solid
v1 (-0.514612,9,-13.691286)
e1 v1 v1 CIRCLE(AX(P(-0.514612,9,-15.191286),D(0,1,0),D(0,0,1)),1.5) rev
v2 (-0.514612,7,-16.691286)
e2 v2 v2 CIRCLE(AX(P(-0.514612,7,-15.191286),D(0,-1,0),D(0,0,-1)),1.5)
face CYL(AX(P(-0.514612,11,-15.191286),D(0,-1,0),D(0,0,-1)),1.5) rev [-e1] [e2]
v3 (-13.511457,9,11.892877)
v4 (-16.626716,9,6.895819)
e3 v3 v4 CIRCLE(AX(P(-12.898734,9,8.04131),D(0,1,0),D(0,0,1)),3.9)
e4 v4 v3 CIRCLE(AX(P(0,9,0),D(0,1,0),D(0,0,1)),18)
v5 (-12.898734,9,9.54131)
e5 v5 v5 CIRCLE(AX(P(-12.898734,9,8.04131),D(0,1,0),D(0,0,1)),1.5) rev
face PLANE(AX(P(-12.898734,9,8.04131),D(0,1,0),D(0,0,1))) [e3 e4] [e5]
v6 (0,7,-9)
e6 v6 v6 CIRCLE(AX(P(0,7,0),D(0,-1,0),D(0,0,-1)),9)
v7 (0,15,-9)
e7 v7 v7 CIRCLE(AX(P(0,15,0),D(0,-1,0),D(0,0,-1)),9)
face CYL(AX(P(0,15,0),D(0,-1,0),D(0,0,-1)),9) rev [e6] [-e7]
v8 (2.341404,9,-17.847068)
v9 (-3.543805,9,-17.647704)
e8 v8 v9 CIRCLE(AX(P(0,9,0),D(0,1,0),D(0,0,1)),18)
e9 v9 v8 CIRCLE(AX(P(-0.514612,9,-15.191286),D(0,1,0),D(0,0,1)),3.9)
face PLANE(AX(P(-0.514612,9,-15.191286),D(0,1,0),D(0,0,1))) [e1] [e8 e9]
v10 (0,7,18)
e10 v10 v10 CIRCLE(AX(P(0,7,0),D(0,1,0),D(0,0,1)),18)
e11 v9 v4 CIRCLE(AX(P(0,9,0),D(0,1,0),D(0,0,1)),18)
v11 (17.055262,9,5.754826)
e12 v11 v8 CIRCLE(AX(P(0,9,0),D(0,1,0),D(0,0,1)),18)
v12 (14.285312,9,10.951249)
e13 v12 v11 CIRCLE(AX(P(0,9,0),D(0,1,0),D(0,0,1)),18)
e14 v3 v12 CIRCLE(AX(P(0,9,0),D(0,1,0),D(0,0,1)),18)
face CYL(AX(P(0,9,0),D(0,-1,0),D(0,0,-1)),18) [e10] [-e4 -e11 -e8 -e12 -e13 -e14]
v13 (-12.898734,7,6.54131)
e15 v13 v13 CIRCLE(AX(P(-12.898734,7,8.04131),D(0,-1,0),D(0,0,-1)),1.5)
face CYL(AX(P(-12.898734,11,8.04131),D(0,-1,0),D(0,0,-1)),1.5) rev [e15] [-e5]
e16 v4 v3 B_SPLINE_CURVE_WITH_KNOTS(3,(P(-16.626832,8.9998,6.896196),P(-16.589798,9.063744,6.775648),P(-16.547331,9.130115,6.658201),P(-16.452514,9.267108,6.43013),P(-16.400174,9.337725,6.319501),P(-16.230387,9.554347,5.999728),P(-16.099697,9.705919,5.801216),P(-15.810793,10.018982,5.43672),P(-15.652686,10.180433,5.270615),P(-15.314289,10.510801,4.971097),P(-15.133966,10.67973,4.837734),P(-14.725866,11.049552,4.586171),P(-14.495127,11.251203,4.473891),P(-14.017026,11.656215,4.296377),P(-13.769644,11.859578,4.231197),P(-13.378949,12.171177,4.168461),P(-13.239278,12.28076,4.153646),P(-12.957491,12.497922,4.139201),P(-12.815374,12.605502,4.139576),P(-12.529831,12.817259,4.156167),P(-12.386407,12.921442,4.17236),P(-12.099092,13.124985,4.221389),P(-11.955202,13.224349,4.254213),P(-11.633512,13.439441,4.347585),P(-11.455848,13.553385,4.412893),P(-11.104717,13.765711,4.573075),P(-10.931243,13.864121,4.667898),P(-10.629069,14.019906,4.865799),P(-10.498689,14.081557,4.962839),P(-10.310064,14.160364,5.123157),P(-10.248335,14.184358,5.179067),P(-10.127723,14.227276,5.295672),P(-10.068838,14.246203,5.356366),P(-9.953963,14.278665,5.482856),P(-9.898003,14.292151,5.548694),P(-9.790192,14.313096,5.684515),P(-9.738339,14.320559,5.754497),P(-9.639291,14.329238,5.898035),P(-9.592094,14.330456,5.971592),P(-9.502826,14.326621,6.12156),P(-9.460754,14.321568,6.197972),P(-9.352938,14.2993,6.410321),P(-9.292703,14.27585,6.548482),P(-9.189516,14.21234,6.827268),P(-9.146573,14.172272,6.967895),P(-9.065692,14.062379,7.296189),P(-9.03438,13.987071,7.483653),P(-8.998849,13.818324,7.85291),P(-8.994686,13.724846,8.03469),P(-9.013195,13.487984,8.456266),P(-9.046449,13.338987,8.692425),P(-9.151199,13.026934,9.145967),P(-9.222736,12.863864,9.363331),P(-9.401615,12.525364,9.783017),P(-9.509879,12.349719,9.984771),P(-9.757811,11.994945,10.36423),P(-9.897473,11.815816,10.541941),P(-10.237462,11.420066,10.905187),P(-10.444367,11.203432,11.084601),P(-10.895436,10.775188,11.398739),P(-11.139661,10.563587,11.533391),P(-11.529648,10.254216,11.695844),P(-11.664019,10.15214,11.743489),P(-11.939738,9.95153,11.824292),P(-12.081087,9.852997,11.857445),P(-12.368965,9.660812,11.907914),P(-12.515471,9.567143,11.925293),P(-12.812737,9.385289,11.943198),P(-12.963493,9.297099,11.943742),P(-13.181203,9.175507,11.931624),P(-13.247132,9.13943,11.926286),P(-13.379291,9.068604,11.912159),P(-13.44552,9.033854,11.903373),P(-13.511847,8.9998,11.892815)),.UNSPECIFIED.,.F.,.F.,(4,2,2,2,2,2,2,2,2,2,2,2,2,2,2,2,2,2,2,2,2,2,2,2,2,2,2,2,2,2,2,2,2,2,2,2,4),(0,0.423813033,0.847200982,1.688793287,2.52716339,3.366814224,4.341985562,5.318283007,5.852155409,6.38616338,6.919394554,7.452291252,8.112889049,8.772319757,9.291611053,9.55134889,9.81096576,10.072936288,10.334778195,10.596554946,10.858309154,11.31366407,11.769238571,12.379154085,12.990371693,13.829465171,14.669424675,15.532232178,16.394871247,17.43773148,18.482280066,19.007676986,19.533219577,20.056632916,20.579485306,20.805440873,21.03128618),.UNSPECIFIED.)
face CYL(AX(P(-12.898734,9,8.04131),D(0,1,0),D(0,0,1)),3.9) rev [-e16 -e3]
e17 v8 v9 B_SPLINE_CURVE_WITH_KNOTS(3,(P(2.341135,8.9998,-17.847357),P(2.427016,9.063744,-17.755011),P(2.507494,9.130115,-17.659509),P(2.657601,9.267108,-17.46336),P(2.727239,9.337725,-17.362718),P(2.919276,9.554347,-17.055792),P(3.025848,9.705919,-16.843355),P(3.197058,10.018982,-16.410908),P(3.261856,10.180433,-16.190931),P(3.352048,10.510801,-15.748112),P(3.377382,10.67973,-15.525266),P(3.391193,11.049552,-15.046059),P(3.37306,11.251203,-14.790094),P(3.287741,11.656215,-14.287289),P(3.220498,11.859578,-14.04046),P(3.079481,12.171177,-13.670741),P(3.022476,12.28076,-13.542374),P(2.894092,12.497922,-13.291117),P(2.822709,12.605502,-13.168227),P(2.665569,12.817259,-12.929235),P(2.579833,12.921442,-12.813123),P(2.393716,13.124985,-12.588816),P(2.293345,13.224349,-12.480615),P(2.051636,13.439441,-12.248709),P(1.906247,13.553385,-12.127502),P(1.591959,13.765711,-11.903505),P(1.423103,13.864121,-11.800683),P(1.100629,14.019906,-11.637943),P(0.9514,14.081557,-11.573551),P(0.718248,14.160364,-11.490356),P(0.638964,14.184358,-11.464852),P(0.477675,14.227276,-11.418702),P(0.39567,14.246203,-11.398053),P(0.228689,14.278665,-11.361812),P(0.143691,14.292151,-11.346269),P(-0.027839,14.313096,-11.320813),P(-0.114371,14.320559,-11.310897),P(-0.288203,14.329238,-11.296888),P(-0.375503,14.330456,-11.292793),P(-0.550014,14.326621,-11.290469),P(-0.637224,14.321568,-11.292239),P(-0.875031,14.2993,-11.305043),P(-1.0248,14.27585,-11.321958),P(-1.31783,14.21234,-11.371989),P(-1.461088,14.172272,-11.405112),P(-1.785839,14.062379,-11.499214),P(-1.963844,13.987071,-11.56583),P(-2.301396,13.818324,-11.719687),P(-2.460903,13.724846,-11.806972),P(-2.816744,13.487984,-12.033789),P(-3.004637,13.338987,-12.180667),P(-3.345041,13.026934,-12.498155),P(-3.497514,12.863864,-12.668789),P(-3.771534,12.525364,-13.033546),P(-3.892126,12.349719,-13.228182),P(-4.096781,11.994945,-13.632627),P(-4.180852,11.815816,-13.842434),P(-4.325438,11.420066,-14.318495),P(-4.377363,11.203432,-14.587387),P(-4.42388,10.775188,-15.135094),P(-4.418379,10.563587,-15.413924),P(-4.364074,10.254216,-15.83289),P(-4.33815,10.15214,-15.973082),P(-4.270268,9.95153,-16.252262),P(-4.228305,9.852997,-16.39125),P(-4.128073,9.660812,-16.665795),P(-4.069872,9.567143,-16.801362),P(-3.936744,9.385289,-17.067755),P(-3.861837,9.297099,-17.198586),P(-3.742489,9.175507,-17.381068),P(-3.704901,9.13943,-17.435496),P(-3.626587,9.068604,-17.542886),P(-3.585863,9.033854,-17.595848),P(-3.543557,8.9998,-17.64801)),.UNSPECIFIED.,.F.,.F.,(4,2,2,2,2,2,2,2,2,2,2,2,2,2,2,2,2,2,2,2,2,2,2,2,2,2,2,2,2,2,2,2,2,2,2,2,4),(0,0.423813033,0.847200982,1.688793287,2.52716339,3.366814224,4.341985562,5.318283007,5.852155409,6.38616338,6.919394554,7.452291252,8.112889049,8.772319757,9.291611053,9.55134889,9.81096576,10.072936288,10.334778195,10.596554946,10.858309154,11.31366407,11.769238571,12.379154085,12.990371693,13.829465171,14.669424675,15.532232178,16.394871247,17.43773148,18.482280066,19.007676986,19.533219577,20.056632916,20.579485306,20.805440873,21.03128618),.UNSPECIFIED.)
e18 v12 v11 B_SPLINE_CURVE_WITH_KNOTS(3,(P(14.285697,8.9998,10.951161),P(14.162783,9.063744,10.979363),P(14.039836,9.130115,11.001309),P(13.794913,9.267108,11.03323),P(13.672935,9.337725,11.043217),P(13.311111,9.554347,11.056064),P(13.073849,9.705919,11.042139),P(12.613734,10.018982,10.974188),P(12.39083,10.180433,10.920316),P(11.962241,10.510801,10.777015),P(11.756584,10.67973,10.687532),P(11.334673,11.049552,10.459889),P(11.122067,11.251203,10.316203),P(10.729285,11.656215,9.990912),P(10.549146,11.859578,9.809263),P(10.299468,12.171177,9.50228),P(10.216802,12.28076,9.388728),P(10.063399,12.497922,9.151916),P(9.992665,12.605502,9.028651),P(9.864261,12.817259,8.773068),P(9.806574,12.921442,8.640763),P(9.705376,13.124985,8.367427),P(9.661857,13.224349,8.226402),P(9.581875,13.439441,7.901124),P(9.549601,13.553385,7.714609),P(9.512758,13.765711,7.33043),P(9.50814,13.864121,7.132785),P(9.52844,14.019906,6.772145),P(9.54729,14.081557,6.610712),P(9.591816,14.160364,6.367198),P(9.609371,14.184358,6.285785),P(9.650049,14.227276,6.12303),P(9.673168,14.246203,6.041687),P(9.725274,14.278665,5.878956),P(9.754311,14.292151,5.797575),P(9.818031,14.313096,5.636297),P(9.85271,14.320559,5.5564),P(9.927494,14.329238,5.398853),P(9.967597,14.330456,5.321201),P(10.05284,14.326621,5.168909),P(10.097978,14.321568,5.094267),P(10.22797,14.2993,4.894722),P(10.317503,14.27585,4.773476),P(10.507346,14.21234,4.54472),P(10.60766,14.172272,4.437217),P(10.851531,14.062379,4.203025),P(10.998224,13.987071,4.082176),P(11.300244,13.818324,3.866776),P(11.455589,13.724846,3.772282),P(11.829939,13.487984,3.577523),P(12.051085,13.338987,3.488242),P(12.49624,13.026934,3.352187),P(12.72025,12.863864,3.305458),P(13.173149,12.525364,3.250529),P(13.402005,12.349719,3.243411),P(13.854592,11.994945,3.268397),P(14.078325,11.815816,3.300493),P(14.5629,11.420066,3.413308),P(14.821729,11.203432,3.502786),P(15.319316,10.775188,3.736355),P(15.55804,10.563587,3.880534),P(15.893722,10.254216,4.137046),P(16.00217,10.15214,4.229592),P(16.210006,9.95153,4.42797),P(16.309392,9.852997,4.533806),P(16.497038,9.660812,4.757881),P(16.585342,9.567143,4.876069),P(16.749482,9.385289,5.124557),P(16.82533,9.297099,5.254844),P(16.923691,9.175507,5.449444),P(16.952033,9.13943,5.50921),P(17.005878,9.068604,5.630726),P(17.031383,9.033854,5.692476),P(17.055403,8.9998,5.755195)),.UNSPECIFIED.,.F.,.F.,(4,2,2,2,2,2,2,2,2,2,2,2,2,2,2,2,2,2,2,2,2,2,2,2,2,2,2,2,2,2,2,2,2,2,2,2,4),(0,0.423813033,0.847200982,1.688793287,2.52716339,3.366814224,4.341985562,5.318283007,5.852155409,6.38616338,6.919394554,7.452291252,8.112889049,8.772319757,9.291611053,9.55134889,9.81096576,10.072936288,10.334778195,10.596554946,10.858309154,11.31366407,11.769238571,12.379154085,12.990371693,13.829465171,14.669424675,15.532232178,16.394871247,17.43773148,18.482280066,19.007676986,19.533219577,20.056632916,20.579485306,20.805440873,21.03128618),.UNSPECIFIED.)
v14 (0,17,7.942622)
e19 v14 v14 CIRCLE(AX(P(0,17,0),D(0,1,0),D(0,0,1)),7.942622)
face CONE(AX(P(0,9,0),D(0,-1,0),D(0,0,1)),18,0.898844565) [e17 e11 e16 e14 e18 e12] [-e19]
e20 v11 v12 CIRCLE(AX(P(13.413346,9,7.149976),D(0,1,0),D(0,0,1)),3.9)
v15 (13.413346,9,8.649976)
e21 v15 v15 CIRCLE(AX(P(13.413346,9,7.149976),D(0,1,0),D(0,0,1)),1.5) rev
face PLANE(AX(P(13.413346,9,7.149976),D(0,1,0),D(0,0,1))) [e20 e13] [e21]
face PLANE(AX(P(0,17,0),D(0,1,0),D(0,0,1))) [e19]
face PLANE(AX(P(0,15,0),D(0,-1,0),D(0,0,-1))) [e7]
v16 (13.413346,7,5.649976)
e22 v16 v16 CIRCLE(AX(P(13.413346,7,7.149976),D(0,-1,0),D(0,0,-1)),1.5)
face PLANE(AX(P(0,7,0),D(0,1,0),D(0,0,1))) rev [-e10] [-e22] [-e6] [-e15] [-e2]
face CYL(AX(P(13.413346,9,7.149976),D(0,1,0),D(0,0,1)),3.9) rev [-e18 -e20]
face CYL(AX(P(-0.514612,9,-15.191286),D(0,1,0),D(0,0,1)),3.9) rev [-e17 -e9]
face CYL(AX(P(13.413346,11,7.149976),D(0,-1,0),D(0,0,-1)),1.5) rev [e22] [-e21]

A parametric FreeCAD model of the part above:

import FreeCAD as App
import Part
import Sketcher
from FreeCAD import Vector
Q = App.Units.Quantity

doc = App.newDocument("Part")
params = doc.addObject("Spreadsheet::Sheet", "Params")
for row, (alias, value) in enumerate([
    ("sketch1_diameter", "18 mm"),
    ("sketch1_diameter2", "21.7 mm"),
    ("pad1_length", "7 mm"),
    ("sketch2_diameter", "36 mm"),
    ("pad2_length", "2 mm"),
    ("sketch3_diameter", "36 mm"),
    ("pad3_length", "8 mm"),
    ("pad3_taper", "-51.5 deg"),
    ("sketch4_diameter", "3 mm"),
    ("pocket1_length", "4 mm"),
    ("sketch5_diameter", "7.8 mm"),
    ("pocket2_length", "8 mm"),
    ("sketch6_diameter", "21.7 mm"),
    ("pocket3_length", "7 mm"),
    ("sketch7_diameter", "18 mm"),
    ("pocket4_length", "8 mm"),
], start=1):
    params.set(f"A{row}", alias)
    params.set(f"B{row}", "=" + value)
    params.setAlias(f"B{row}", alias)

body = doc.addObject("PartDesign::Body", "Body")

sketch1 = doc.addObject("Sketcher::SketchObject", "Sketch")
body.addObject(sketch1)
sketch1.AttachmentSupport = (doc.XZ_Plane, [""])
sketch1.MapMode = "FlatFace"
sketch1.addGeometry([
    Part.Circle(Vector(0, 0, 0), Vector(0, 0, 1), 11),
    Part.Circle(Vector(0, 0, 0), Vector(0, 0, 1), 9),
], False)
sketch1.addConstraint([
    Sketcher.Constraint("Coincident", 0, 3, -1, 1),
    Sketcher.Constraint("Coincident", 1, 3, -1, 1),
    Sketcher.Constraint("Diameter", 1, Q("18 mm")),
    Sketcher.Constraint("Diameter", 0, Q("21.7 mm")),
])
sketch1.setExpression("Constraints[2]", "Params.sketch1_diameter")
sketch1.setExpression("Constraints[3]", "Params.sketch1_diameter2")
pad1 = doc.addObject("PartDesign::Pad", "Pad")
body.addObject(pad1)
pad1.Profile = sketch1
pad1.setExpression("Length", "Params.pad1_length")
pad1.Reversed = True

sketch2 = doc.addObject("Sketcher::SketchObject", "Sketch001")
body.addObject(sketch2)
sketch2.AttachmentSupport = (doc.XZ_Plane, [""])
sketch2.MapMode = "FlatFace"
sketch2.AttachmentOffset = App.Placement(Vector(0, 0, -7), App.Rotation())
sketch2.addGeometry(Part.Circle(Vector(0, 0, 0), Vector(0, 0, 1), 18), False)
sketch2.addConstraint([
    Sketcher.Constraint("Coincident", 0, 3, -1, 1),
    Sketcher.Constraint("Diameter", 0, Q("36 mm")),
])
sketch2.setExpression("Constraints[1]", "Params.sketch2_diameter")
pad2 = doc.addObject("PartDesign::Pad", "Pad001")
body.addObject(pad2)
pad2.Profile = sketch2
pad2.setExpression("Length", "Params.pad2_length")
pad2.Reversed = True

sketch3 = doc.addObject("Sketcher::SketchObject", "Sketch002")
body.addObject(sketch3)
sketch3.AttachmentSupport = (doc.XZ_Plane, [""])
sketch3.MapMode = "FlatFace"
sketch3.AttachmentOffset = App.Placement(Vector(0, 0, -9), App.Rotation())
sketch3.addGeometry(Part.Circle(Vector(0, 0, 0), Vector(0, 0, 1), 18), False)
sketch3.addConstraint([
    Sketcher.Constraint("Coincident", 0, 3, -1, 1),
    Sketcher.Constraint("Diameter", 0, Q("36 mm")),
])
sketch3.setExpression("Constraints[1]", "Params.sketch3_diameter")
pad3 = doc.addObject("PartDesign::Pad", "Pad002")
body.addObject(pad3)
pad3.Profile = sketch3
pad3.setExpression("Length", "Params.pad3_length")
pad3.Reversed = True
pad3.setExpression("TaperAngle", "Params.pad3_taper")

sketch4 = doc.addObject("Sketcher::SketchObject", "Sketch003")
body.addObject(sketch4)
sketch4.AttachmentSupport = (doc.XZ_Plane, [""])
sketch4.MapMode = "FlatFace"
sketch4.AttachmentOffset = App.Placement(Vector(0, 0, -7), App.Rotation())
sketch4.addGeometry([
    Part.Circle(Vector(-12.9, 8, 0), Vector(0, 0, 1), 1.5),
    Part.Circle(Vector(13.4, 7.1, 0), Vector(0, 0, 1), 1.5),
    Part.Circle(Vector(-0.5, -15.2, 0), Vector(0, 0, 1), 1.5),
], False)
sketch4.addConstraint([
    Sketcher.Constraint("Equal", 0, 1),
    Sketcher.Constraint("Equal", 1, 2),
    Sketcher.Constraint("Diameter", 0, Q("3 mm")),
    Sketcher.Constraint("DistanceY", -1, 1, 0, 3, Q("8.04131 mm")),
    Sketcher.Constraint("DistanceX", 2, 3, -1, 1, Q("0.514612 mm")),
    Sketcher.Constraint("DistanceX", 0, 3, 1, 3, Q("26.312079 mm")),
    Sketcher.Constraint("DistanceX", 0, 3, 2, 3, Q("12.384122 mm")),
    Sketcher.Constraint("DistanceY", -1, 1, 1, 3, Q("7.149976 mm")),
    Sketcher.Constraint("DistanceY", 2, 3, -1, 1, Q("15.191286 mm")),
])
sketch4.setExpression("Constraints[2]", "Params.sketch4_diameter")
pocket1 = doc.addObject("PartDesign::Pocket", "Pocket")
body.addObject(pocket1)
pocket1.Profile = sketch4
pocket1.setExpression("Length", "Params.pocket1_length")

sketch5 = doc.addObject("Sketcher::SketchObject", "Sketch004")
body.addObject(sketch5)
sketch5.AttachmentSupport = (doc.XZ_Plane, [""])
sketch5.MapMode = "FlatFace"
sketch5.AttachmentOffset = App.Placement(Vector(0, 0, -17), App.Rotation())
sketch5.addGeometry([
    Part.Circle(Vector(-0.5, -15.2, 0), Vector(0, 0, 1), 3.9),
    Part.Circle(Vector(13.4, 7.1, 0), Vector(0, 0, 1), 3.9),
    Part.Circle(Vector(-12.9, 8, 0), Vector(0, 0, 1), 3.9),
], False)
sketch5.addConstraint([
    Sketcher.Constraint("Equal", 0, 1),
    Sketcher.Constraint("Equal", 1, 2),
    Sketcher.Constraint("Diameter", 0, Q("7.8 mm")),
    Sketcher.Constraint("DistanceX", 0, 3, -1, 1, Q("0.514612 mm")),
    Sketcher.Constraint("DistanceY", -1, 1, 2, 3, Q("8.04131 mm")),
    Sketcher.Constraint("DistanceX", 2, 3, 0, 3, Q("12.384122 mm")),
    Sketcher.Constraint("DistanceX", 2, 3, 1, 3, Q("26.312079 mm")),
    Sketcher.Constraint("DistanceY", 0, 3, -1, 1, Q("15.191286 mm")),
    Sketcher.Constraint("DistanceY", -1, 1, 1, 3, Q("7.149976 mm")),
])
sketch5.setExpression("Constraints[2]", "Params.sketch5_diameter")
pocket2 = doc.addObject("PartDesign::Pocket", "Pocket001")
body.addObject(pocket2)
pocket2.Profile = sketch5
pocket2.setExpression("Length", "Params.pocket2_length")
pocket2.Reversed = True

sketch6 = doc.addObject("Sketcher::SketchObject", "Sketch005")
body.addObject(sketch6)
sketch6.AttachmentSupport = (doc.XZ_Plane, [""])
sketch6.MapMode = "FlatFace"
sketch6.addGeometry(Part.Circle(Vector(0, 0, 0), Vector(0, 0, 1), 11), False)
sketch6.addConstraint([
    Sketcher.Constraint("Coincident", 0, 3, -1, 1),
    Sketcher.Constraint("Diameter", 0, Q("21.7 mm")),
])
sketch6.setExpression("Constraints[1]", "Params.sketch6_diameter")
pocket3 = doc.addObject("PartDesign::Pocket", "Pocket002")
body.addObject(pocket3)
pocket3.Profile = sketch6
pocket3.setExpression("Length", "Params.pocket3_length")

sketch7 = doc.addObject("Sketcher::SketchObject", "Sketch006")
body.addObject(sketch7)
sketch7.AttachmentSupport = (doc.XZ_Plane, [""])
sketch7.MapMode = "FlatFace"
sketch7.AttachmentOffset = App.Placement(Vector(0, 0, -7), App.Rotation())
sketch7.addGeometry(Part.Circle(Vector(0, 0, 0), Vector(0, 0, 1), 9), False)
sketch7.addConstraint([
    Sketcher.Constraint("Coincident", 0, 3, -1, 1),
    Sketcher.Constraint("Diameter", 0, Q("18 mm")),
])
sketch7.setExpression("Constraints[1]", "Params.sketch7_diameter")
pocket4 = doc.addObject("PartDesign::Pocket", "Pocket003")
body.addObject(pocket4)
pocket4.Profile = sketch7
pocket4.setExpression("Length", "Params.pocket4_length")

doc.recompute()
